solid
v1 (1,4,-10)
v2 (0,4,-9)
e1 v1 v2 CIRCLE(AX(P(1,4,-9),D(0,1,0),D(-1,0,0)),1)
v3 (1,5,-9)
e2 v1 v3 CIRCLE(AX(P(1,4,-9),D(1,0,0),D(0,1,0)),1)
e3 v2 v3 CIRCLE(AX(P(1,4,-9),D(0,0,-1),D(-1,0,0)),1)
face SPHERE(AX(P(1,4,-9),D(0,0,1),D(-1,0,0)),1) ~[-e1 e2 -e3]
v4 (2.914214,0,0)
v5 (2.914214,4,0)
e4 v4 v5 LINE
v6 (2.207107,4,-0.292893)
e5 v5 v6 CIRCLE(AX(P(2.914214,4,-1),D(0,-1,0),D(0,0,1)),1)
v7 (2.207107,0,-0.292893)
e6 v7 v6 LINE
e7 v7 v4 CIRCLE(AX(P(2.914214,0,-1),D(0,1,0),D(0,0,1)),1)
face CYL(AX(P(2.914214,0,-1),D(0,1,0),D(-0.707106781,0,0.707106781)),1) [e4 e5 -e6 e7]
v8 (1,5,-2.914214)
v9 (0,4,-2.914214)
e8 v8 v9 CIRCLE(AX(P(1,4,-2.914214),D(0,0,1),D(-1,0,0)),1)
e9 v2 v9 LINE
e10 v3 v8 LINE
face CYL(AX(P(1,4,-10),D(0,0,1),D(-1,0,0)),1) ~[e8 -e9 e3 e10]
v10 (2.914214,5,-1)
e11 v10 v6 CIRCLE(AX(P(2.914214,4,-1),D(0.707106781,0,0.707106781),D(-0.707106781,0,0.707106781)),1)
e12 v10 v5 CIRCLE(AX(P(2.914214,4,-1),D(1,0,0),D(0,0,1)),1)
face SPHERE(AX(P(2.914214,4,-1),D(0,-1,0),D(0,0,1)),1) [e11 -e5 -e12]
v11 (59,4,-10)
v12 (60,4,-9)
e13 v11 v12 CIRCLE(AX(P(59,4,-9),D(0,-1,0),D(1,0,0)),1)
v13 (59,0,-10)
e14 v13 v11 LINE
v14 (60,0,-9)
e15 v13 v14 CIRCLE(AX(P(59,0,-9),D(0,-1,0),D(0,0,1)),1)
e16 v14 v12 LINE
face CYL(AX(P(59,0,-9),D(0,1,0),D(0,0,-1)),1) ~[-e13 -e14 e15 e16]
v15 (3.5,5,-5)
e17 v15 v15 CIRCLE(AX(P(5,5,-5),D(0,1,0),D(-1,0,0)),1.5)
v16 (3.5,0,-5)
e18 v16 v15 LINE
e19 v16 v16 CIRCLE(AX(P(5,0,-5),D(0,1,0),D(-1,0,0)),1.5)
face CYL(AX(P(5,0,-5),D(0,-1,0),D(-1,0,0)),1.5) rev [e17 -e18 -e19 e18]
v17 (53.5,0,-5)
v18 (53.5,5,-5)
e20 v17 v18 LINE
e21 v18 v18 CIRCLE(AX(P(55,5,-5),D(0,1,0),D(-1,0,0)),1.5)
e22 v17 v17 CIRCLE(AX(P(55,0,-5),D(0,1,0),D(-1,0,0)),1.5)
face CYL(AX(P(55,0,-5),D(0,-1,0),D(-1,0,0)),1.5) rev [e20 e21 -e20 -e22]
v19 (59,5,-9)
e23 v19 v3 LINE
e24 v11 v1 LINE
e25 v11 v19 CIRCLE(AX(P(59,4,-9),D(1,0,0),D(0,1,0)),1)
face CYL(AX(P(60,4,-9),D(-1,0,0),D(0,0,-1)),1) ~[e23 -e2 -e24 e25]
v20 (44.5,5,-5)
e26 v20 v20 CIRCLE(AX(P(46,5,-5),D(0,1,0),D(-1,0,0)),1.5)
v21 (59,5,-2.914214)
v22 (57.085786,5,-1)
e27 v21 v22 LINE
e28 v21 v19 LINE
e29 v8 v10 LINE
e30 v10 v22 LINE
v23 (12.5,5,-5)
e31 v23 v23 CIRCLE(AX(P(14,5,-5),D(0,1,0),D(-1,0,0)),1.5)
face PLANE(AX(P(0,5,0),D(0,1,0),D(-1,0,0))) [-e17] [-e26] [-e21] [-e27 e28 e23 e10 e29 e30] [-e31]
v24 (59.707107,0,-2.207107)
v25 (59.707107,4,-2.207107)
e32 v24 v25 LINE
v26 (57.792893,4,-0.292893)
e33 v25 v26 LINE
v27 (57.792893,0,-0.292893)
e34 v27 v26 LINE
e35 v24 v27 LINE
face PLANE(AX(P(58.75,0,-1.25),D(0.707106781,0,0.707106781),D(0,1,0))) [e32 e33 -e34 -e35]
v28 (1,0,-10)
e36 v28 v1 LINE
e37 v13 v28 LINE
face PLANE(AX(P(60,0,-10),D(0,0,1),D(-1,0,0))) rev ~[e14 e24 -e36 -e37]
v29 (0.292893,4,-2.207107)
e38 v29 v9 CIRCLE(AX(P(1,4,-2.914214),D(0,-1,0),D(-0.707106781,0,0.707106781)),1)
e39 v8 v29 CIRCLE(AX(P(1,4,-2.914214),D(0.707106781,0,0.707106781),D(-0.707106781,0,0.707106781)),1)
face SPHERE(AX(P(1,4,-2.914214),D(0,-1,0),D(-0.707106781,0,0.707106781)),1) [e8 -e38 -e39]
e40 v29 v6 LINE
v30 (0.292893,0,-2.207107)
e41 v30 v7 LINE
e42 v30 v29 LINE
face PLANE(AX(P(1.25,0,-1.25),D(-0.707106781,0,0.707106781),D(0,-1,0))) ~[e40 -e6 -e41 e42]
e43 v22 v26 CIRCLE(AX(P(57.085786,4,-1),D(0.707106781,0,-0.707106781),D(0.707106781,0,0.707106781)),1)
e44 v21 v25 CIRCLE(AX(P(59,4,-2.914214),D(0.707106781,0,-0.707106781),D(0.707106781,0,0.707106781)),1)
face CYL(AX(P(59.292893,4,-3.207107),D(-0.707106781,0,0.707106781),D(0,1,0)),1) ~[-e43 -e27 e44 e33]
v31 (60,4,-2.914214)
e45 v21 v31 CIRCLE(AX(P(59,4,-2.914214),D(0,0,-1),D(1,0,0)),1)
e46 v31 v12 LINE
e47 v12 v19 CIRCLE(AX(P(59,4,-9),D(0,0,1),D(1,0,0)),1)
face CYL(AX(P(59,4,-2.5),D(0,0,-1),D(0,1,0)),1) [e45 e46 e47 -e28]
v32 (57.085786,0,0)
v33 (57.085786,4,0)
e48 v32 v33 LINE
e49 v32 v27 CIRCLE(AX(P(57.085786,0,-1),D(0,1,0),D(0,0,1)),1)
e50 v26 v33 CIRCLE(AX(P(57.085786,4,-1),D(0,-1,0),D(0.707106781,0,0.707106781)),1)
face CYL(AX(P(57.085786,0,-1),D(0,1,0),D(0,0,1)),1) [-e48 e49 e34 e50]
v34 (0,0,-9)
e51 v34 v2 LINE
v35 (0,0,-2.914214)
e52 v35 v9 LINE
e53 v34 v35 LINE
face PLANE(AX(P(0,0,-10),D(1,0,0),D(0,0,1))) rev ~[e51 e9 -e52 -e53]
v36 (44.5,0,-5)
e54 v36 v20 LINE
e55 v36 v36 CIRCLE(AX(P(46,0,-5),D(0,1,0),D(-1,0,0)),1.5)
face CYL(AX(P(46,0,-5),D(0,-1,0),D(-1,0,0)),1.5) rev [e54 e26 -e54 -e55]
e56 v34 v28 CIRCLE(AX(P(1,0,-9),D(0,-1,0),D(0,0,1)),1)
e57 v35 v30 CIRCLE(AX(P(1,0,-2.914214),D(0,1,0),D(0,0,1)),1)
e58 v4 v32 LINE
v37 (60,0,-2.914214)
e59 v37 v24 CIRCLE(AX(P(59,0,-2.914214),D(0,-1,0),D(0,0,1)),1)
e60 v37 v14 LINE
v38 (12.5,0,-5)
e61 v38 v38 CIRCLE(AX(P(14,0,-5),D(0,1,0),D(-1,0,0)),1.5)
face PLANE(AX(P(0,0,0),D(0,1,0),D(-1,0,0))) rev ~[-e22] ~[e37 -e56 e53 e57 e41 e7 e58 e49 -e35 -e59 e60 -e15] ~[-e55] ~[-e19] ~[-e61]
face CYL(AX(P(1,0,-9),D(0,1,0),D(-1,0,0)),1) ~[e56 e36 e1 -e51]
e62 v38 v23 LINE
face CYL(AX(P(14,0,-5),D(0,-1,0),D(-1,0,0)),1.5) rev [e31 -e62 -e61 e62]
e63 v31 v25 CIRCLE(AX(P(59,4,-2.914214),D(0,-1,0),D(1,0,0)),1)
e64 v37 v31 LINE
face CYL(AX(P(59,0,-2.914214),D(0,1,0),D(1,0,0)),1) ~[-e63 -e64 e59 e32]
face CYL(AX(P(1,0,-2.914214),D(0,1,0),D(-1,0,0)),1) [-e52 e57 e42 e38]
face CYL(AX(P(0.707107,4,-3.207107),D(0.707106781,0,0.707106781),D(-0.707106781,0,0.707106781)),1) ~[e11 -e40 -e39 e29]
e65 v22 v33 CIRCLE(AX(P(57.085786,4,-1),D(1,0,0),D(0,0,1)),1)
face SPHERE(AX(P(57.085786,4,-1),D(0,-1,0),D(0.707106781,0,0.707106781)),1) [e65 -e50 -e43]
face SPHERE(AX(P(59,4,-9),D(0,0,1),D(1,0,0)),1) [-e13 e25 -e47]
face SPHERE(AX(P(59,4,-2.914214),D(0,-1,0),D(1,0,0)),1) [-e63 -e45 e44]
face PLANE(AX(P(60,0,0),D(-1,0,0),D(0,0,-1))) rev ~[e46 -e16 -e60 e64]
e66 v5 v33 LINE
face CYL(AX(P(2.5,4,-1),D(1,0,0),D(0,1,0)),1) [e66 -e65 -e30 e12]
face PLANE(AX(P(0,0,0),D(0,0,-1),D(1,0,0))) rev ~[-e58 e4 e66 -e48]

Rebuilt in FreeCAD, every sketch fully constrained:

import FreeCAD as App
import Part
import Sketcher
from FreeCAD import Vector


def edges_at(feature, points):
    """Names of the edges that pass closest to the given points."""
    edges = feature.Shape.Edges
    near = lambda p: min(range(len(edges)), key=lambda i: edges[i].distToShape(Part.Vertex(*p))[0])
    return sorted({f"Edge{near(p) + 1}" for p in points})


def add_polygon(sketch, points):
    """Adds a closed chain of lines whose ends are joined by coincident constraints."""
    first, n = sketch.GeometryCount, len(points)
    for a, b in zip(points, points[1:] + points[:1]):
        sketch.addGeometry(Part.LineSegment(App.Vector(*a, 0), App.Vector(*b, 0)), False)
    for i in range(n):
        sketch.addConstraint(Sketcher.Constraint("Coincident", first + i, 2, first + (i + 1) % n, 1))

doc = App.newDocument("Part")
body = doc.addObject("PartDesign::Body", "Body")

sketch1 = body.newObject("Sketcher::SketchObject", "Sketch")
sketch1.AttachmentSupport = (doc.getObject("XZ_Plane"), [""])
sketch1.MapMode = "FlatFace"
add_polygon(sketch1, [(0, -10), (0, 0), (60, 0), (60, -10)])
sketch1.addGeometry(Part.Circle(Vector(55, -5, 0), Vector(0, 0, 1), 1.5), False)
sketch1.addGeometry(Part.Circle(Vector(46, -5, 0), Vector(0, 0, 1), 1.5), False)
sketch1.addGeometry(Part.Circle(Vector(14, -5, 0), Vector(0, 0, 1), 1.5), False)
sketch1.addGeometry(Part.Circle(Vector(5, -5, 0), Vector(0, 0, 1), 1.5), False)
sketch1.addConstraint([
    Sketcher.Constraint("Vertical", 0),
    Sketcher.Constraint("Horizontal", 1),
    Sketcher.Constraint("Vertical", 2),
    Sketcher.Constraint("Horizontal", 3),
    Sketcher.Constraint("Coincident", 0, 2, -1, 1),
    Sketcher.Constraint("Equal", 4, 5),
    Sketcher.Constraint("Equal", 5, 6),
    Sketcher.Constraint("Equal", 6, 7),
    Sketcher.Constraint("Horizontal", 4, 3, 5, 3),
    Sketcher.Constraint("Horizontal", 5, 3, 6, 3),
    Sketcher.Constraint("Horizontal", 6, 3, 7, 3),
    Sketcher.Constraint("Diameter", 4, 3.0),
    Sketcher.Constraint("DistanceX", 1, 1, 1, 2, 60.0),
    Sketcher.Constraint("DistanceY", 0, 1, 0, 2, 10.0),
    Sketcher.Constraint("DistanceY", 4, 3, -1, 1, 5.0),
    Sketcher.Constraint("DistanceX", -1, 1, 7, 3, 5.0),
    Sketcher.Constraint("DistanceX", 4, 3, 1, 2, 5.0),
    Sketcher.Constraint("DistanceX", -1, 1, 5, 3, 46.0),
    Sketcher.Constraint("DistanceX", -1, 1, 6, 3, 14.0),
])
pad1 = body.newObject("PartDesign::Pad", "Pad")
pad1.Profile = sketch1
pad1.Length = 5
pad1.Reversed = True
doc.recompute()

chamfer = body.newObject("PartDesign::Chamfer", "Chamfer")
chamfer.Base = (pad1, edges_at(pad1, [(0, 2.5, 0), (60, 2.5, 0)]))
chamfer.Size = 2.5
doc.recompute()

fillet = body.newObject("PartDesign::Fillet", "Fillet")
fillet.Base = (chamfer, edges_at(chamfer, [
    (30, 5, 0),
    (1.25, 5, -1.25),
    (0, 5, -6.25),
    (0, 2.5, -2.5),
    (2.5, 2.5, 0),
    (57.5, 2.5, 0),
    (58.75, 5, -1.25),
    (60, 2.5, -2.5),
    (60, 5, -6.25),
    (60, 2.5, -10),
    (0, 2.5, -10),
    (30, 5, -10),
]))
fillet.Radius = 1

doc.recompute()
